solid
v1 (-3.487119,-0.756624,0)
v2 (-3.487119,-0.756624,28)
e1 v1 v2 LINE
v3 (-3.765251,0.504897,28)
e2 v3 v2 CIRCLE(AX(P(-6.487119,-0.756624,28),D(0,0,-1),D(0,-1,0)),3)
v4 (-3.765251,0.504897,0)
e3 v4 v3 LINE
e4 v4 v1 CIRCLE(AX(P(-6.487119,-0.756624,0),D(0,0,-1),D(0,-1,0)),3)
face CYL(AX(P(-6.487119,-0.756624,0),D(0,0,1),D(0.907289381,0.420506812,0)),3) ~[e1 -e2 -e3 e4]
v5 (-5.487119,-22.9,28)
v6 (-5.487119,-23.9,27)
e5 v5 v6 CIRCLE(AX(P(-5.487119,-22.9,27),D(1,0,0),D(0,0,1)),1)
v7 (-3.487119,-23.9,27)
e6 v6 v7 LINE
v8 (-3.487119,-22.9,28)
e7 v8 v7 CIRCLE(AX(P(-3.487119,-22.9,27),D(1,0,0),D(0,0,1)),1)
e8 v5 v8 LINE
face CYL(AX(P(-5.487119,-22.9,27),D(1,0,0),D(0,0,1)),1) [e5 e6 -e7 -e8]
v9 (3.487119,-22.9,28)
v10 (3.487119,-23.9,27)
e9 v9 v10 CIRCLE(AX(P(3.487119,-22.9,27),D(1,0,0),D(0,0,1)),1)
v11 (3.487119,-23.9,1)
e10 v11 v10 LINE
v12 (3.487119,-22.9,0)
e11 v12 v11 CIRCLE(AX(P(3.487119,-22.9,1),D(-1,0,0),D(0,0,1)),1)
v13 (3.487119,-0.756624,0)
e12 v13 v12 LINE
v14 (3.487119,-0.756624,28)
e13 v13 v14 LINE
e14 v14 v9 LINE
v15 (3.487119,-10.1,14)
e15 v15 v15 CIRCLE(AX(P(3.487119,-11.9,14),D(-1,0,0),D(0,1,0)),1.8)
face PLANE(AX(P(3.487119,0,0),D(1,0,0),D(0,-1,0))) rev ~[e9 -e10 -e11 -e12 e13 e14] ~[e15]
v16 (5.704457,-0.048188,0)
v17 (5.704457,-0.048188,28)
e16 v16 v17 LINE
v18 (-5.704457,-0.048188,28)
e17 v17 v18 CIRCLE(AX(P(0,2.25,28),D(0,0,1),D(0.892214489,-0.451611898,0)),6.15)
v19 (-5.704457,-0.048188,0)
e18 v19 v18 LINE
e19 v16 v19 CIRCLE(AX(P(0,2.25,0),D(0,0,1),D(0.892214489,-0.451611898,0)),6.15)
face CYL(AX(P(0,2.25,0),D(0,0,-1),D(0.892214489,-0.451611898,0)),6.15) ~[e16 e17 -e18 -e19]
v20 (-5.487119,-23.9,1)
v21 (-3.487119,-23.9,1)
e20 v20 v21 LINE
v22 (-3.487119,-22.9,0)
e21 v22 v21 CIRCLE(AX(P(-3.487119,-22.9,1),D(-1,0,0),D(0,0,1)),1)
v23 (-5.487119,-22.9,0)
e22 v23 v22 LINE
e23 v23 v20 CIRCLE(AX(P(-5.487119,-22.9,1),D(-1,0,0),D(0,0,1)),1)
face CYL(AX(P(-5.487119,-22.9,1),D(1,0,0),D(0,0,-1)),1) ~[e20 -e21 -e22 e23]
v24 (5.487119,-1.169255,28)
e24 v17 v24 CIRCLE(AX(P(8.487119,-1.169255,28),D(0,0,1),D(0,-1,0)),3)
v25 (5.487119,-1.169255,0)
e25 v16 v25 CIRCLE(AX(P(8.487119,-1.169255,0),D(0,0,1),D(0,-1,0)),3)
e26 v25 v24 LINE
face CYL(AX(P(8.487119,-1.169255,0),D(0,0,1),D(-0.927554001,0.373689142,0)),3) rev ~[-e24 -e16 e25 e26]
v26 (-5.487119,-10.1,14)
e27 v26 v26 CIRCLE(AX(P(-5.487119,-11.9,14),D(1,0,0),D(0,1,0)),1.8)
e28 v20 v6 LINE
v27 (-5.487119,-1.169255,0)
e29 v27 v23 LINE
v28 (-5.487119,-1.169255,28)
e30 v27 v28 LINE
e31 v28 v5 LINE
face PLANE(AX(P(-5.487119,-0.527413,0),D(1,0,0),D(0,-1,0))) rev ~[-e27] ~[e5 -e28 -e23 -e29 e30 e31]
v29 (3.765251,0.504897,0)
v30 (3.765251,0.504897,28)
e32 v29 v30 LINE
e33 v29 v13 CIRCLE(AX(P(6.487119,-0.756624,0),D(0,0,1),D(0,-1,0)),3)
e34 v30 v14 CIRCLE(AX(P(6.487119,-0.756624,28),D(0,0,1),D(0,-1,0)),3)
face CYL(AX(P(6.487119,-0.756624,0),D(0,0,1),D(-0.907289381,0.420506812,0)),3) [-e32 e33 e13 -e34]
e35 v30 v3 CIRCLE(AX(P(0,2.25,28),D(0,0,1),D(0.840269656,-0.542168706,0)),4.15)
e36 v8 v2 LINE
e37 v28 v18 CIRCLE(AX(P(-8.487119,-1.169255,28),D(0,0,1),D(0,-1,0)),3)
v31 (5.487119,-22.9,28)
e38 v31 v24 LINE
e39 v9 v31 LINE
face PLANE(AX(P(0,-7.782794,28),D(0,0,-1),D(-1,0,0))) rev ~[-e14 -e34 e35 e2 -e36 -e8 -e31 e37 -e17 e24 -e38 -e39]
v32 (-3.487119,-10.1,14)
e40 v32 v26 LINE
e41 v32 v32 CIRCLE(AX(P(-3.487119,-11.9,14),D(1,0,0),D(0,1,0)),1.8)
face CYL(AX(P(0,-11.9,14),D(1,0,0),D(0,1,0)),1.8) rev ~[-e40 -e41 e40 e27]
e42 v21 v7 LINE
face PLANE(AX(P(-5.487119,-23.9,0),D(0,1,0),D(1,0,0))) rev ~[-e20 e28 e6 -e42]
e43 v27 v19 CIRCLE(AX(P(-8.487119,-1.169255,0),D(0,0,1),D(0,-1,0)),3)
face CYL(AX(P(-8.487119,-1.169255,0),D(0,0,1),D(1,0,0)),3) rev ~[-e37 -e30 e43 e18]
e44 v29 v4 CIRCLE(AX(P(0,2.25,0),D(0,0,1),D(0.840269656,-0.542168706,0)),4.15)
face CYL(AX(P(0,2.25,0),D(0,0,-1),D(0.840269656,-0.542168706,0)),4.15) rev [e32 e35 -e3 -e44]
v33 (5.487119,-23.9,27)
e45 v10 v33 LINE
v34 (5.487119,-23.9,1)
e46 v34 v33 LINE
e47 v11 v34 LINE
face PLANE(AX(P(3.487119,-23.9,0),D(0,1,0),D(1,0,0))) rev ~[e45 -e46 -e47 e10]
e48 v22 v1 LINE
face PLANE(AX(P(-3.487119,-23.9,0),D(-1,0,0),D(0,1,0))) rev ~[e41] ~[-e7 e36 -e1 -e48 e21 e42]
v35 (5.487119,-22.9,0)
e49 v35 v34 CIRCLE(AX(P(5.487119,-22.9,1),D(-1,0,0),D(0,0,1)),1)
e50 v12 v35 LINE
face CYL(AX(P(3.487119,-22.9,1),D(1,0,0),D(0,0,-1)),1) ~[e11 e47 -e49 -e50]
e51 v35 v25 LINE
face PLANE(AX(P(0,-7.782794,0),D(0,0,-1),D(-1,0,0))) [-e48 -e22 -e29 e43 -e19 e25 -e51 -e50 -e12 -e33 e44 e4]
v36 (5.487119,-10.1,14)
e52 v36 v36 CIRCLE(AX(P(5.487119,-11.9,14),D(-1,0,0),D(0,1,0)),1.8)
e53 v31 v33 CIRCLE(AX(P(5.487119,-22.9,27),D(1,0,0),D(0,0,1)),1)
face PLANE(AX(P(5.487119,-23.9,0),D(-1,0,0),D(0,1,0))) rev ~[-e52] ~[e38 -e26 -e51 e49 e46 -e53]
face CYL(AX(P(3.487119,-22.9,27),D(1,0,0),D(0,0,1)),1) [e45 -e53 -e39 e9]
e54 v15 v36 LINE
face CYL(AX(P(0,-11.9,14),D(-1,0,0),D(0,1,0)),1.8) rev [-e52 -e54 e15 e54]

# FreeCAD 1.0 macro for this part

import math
import FreeCAD as App
import Part
import Sketcher


def edges_at(feature, points):
    """Names of the edges that pass closest to the given points."""
    edges = feature.Shape.Edges
    near = lambda p: min(range(len(edges)), key=lambda i: edges[i].distToShape(Part.Vertex(*p))[0])
    return sorted({f"Edge{near(p) + 1}" for p in points})

doc = App.newDocument("Part")
body = doc.addObject("PartDesign::Body", "Body")

# Sketch on XY plane
sketch1 = body.newObject("Sketcher::SketchObject", "Sketch")
sketch1.AttachmentSupport = (doc.getObject("XY_Plane"), [""])
sketch1.MapMode = "FlatFace"
sketch1.addGeometry(Part.ArcOfCircle(Part.Circle(App.Vector(0, 2.3, 0), App.Vector(0, 0, 1), 4.1), math.radians(-33), math.radians(213)), False)
sketch1.addGeometry(Part.LineSegment(App.Vector(3.5, 0, 0), App.Vector(3.5, -23.9, 0)), False)
sketch1.addGeometry(Part.LineSegment(App.Vector(3.5, -23.9, 0), App.Vector(5.5, -23.9, 0)), False)
sketch1.addGeometry(Part.LineSegment(App.Vector(5.5, -23.9, 0), App.Vector(5.5, -0.5, 0)), False)
sketch1.addGeometry(Part.ArcOfCircle(Part.Circle(App.Vector(0, 2.3, 0), App.Vector(0, 0, 1), 6.1), math.radians(-27), math.radians(207)), False)
sketch1.addGeometry(Part.LineSegment(App.Vector(-5.5, -0.5, 0), App.Vector(-5.5, -23.9, 0)), False)
sketch1.addGeometry(Part.LineSegment(App.Vector(-5.5, -23.9, 0), App.Vector(-3.5, -23.9, 0)), False)
sketch1.addGeometry(Part.LineSegment(App.Vector(-3.5, -23.9, 0), App.Vector(-3.5, 0, 0)), False)
sketch1.addConstraint(Sketcher.Constraint("Coincident", 0, 1, 1, 1))
sketch1.addConstraint(Sketcher.Constraint("Coincident", 1, 2, 2, 1))
sketch1.addConstraint(Sketcher.Constraint("Coincident", 2, 2, 3, 1))
sketch1.addConstraint(Sketcher.Constraint("Coincident", 3, 2, 4, 1))
sketch1.addConstraint(Sketcher.Constraint("Coincident", 4, 2, 5, 1))
sketch1.addConstraint(Sketcher.Constraint("Coincident", 5, 2, 6, 1))
sketch1.addConstraint(Sketcher.Constraint("Coincident", 6, 2, 7, 1))
sketch1.addConstraint(Sketcher.Constraint("Coincident", 7, 2, 0, 2))
sketch1.addConstraint(Sketcher.Constraint("Vertical", 1))
sketch1.addConstraint(Sketcher.Constraint("Horizontal", 2))
sketch1.addConstraint(Sketcher.Constraint("Vertical", 3))
sketch1.addConstraint(Sketcher.Constraint("Vertical", 5))
sketch1.addConstraint(Sketcher.Constraint("Horizontal", 6))
sketch1.addConstraint(Sketcher.Constraint("Vertical", 7))
sketch1.addConstraint(Sketcher.Constraint("Coincident", 4, 3, 0, 3))
sketch1.addConstraint(Sketcher.Constraint("Symmetric", 0, 1, 7, 2, -1, 1))
sketch1.addConstraint(Sketcher.Constraint("Symmetric", 3, 2, 4, 2, -2))
sketch1.addConstraint(Sketcher.Constraint("Horizontal", 2, 2, 5, 2))
sketch1.addConstraint(Sketcher.Constraint("DistanceX", 2, 1, 2, 2, 2.0))
sketch1.addConstraint(Sketcher.Constraint("Radius", 0, 4.15))
sketch1.addConstraint(Sketcher.Constraint("Radius", 4, 6.15))
sketch1.addConstraint(Sketcher.Constraint("DistanceY", 1, 2, 1, 1, 23.9))
sketch1.addConstraint(Sketcher.Constraint("DistanceY", -1, 1, 0, 3, 2.25))
pad1 = body.newObject("PartDesign::Pad", "Pad")
pad1.Profile = sketch1
pad1.Length = 28

# Sketch on YZ plane
sketch2 = body.newObject("Sketcher::SketchObject", "Sketch001")
sketch2.AttachmentSupport = (doc.getObject("YZ_Plane"), [""])
sketch2.MapMode = "FlatFace"
sketch2.addGeometry(Part.Circle(App.Vector(-11.9, 14, 0), App.Vector(0, 0, 1), 1.8), False)
sketch2.addConstraint(Sketcher.Constraint("Diameter", 0, 3.6))
sketch2.addConstraint(Sketcher.Constraint("DistanceY", -1, 1, 0, 3, 14.0))
sketch2.addConstraint(Sketcher.Constraint("DistanceX", 0, 3, -1, 1, 11.9))
pocket1 = body.newObject("PartDesign::Pocket", "Pocket")
pocket1.Profile = sketch2
pocket1.Type = "ThroughAll"
pocket1.Midplane = True
doc.recompute()

fillet = body.newObject("PartDesign::Fillet", "Fillet")
fillet.Base = (pocket1, edges_at(pocket1, [
    (3.487, 0, 14),
    (-3.487, 0, 14),
    (5.487, -0.527, 14),
    (-5.487, -0.527, 14),
]))
fillet.Radius = 3
doc.recompute()

fillet2 = body.newObject("PartDesign::Fillet", "Fillet001")
fillet2.Base = (fillet, edges_at(fillet, [
    (4.487, -23.9, 28),
    (-4.487, -23.9, 28),
    (-4.487, -23.9, 0),
    (4.487, -23.9, 0),
]))
fillet2.Radius = 1

doc.recompute()
